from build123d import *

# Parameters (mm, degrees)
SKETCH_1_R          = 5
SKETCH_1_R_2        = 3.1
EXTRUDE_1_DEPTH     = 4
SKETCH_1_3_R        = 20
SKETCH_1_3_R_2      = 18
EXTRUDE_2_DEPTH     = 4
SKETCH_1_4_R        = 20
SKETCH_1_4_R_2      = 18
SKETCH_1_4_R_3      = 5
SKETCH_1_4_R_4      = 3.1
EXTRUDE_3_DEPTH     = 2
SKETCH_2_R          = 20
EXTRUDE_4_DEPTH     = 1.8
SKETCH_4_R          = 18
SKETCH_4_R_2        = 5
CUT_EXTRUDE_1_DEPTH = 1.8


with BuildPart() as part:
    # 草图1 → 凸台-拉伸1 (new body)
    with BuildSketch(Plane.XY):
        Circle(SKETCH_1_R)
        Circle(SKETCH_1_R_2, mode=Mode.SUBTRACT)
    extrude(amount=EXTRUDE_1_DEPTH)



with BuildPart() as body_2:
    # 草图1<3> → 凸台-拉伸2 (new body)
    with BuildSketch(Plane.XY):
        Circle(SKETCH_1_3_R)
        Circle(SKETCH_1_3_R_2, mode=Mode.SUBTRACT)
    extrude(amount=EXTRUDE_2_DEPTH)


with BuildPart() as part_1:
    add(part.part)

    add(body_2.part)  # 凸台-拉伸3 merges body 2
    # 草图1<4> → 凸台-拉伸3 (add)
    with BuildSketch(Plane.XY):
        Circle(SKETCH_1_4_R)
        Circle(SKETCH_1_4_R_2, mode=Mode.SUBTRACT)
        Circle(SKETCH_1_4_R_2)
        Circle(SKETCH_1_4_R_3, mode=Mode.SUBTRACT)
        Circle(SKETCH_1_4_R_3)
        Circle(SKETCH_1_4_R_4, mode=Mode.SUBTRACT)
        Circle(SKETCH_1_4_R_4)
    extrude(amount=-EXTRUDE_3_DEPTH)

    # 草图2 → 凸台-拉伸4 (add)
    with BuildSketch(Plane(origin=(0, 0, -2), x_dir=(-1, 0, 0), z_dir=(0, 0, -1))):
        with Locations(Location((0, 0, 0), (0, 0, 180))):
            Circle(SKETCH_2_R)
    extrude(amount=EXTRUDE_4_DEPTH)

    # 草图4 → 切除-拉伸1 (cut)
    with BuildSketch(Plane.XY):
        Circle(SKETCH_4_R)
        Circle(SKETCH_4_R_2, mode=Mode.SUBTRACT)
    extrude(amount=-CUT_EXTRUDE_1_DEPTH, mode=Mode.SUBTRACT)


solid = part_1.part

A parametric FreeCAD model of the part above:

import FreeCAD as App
import Part
import Sketcher

V = App.Vector
Q = App.Units.Quantity

doc = App.newDocument("Part")
body = doc.addObject("PartDesign::Body", "Body")

# Sketch on XY plane
sketch1 = body.newObject("Sketcher::SketchObject", "Sketch")
sketch1.AttachmentSupport = (doc.getObject("XY_Plane"), [""])
sketch1.MapMode = "FlatFace"
sketch1.addGeometry([
    Part.Circle(V(0, 0, 0), V(0, 0, 1), 5),
    Part.Circle(V(0, 0, 0), V(0, 0, 1), 3.1),
], False)
sketch1.addConstraint([
    Sketcher.Constraint("Coincident", 0, 3, -1, 1),
    Sketcher.Constraint("Coincident", 1, 3, -1, 1),
    Sketcher.Constraint("Diameter", 0, Q("10 mm")),
    Sketcher.Constraint("Diameter", 1, Q("6.2 mm")),
])
pad1 = body.newObject("PartDesign::Pad", "Pad")
pad1.Profile = sketch1
pad1.Length = 4
body2 = doc.addObject("PartDesign::Body", "Body001")

# Sketch on XY plane
sketch2 = body2.newObject("Sketcher::SketchObject", "Sketch001")
sketch2.AttachmentSupport = (doc.getObject("XY_Plane001"), [""])
sketch2.MapMode = "FlatFace"
sketch2.addGeometry([
    Part.Circle(V(0, 0, 0), V(0, 0, 1), 20),
    Part.Circle(V(0, 0, 0), V(0, 0, 1), 18),
], False)
sketch2.addConstraint([
    Sketcher.Constraint("Coincident", 0, 3, -1, 1),
    Sketcher.Constraint("Coincident", 1, 3, -1, 1),
    Sketcher.Constraint("Diameter", 0, Q("40 mm")),
    Sketcher.Constraint("Diameter", 1, Q("36 mm")),
])
pad2 = body2.newObject("PartDesign::Pad", "Pad001")
pad2.Profile = sketch2
pad2.Length = 4
body.AllowCompound = True
doc.recompute()

boolean = body.newObject("PartDesign::Boolean", "Boolean")
boolean.Type = "Fuse"
boolean.addObjects([body2])

# Sketch on XY plane
sketch3 = body.newObject("Sketcher::SketchObject", "Sketch002")
sketch3.AttachmentSupport = (doc.getObject("XY_Plane"), [""])
sketch3.MapMode = "FlatFace"
sketch3.addGeometry(Part.Circle(V(0, 0, 0), V(0, 0, 1), 20), False)
sketch3.addConstraint([
    Sketcher.Constraint("Coincident", 0, 3, -1, 1),
    Sketcher.Constraint("Diameter", 0, Q("40 mm")),
])
pad3 = body.newObject("PartDesign::Pad", "Pad002")
pad3.Profile = sketch3
pad3.Length = 2
pad3.Reversed = True

# Sketch on XY plane
sketch4 = body.newObject("Sketcher::SketchObject", "Sketch003")
sketch4.AttachmentSupport = (doc.getObject("XY_Plane"), [""])
sketch4.MapMode = "FlatFace"
sketch4.AttachmentOffset = App.Placement(V(0, 0, -2), App.Rotation())
sketch4.addGeometry(Part.Circle(V(0, 0, 0), V(0, 0, 1), 20), False)
sketch4.addConstraint([
    Sketcher.Constraint("Coincident", 0, 3, -1, 1),
    Sketcher.Constraint("Diameter", 0, Q("40 mm")),
])
pad4 = body.newObject("PartDesign::Pad", "Pad003")
pad4.Profile = sketch4
pad4.Length = 1.8
pad4.Reversed = True

# Sketch on XY plane
sketch5 = body.newObject("Sketcher::SketchObject", "Sketch004")
sketch5.AttachmentSupport = (doc.getObject("XY_Plane"), [""])
sketch5.MapMode = "FlatFace"
sketch5.addGeometry([
    Part.Circle(V(0, 0, 0), V(0, 0, 1), 18),
    Part.Circle(V(0, 0, 0), V(0, 0, 1), 5),
], False)
sketch5.addConstraint([
    Sketcher.Constraint("Coincident", 0, 3, -1, 1),
    Sketcher.Constraint("Coincident", 1, 3, -1, 1),
    Sketcher.Constraint("Diameter", 0, Q("36 mm")),
    Sketcher.Constraint("Diameter", 1, Q("10 mm")),
])
pocket1 = body.newObject("PartDesign::Pocket", "Pocket")
pocket1.Profile = sketch5
pocket1.Length = 1.8

doc.recompute()
